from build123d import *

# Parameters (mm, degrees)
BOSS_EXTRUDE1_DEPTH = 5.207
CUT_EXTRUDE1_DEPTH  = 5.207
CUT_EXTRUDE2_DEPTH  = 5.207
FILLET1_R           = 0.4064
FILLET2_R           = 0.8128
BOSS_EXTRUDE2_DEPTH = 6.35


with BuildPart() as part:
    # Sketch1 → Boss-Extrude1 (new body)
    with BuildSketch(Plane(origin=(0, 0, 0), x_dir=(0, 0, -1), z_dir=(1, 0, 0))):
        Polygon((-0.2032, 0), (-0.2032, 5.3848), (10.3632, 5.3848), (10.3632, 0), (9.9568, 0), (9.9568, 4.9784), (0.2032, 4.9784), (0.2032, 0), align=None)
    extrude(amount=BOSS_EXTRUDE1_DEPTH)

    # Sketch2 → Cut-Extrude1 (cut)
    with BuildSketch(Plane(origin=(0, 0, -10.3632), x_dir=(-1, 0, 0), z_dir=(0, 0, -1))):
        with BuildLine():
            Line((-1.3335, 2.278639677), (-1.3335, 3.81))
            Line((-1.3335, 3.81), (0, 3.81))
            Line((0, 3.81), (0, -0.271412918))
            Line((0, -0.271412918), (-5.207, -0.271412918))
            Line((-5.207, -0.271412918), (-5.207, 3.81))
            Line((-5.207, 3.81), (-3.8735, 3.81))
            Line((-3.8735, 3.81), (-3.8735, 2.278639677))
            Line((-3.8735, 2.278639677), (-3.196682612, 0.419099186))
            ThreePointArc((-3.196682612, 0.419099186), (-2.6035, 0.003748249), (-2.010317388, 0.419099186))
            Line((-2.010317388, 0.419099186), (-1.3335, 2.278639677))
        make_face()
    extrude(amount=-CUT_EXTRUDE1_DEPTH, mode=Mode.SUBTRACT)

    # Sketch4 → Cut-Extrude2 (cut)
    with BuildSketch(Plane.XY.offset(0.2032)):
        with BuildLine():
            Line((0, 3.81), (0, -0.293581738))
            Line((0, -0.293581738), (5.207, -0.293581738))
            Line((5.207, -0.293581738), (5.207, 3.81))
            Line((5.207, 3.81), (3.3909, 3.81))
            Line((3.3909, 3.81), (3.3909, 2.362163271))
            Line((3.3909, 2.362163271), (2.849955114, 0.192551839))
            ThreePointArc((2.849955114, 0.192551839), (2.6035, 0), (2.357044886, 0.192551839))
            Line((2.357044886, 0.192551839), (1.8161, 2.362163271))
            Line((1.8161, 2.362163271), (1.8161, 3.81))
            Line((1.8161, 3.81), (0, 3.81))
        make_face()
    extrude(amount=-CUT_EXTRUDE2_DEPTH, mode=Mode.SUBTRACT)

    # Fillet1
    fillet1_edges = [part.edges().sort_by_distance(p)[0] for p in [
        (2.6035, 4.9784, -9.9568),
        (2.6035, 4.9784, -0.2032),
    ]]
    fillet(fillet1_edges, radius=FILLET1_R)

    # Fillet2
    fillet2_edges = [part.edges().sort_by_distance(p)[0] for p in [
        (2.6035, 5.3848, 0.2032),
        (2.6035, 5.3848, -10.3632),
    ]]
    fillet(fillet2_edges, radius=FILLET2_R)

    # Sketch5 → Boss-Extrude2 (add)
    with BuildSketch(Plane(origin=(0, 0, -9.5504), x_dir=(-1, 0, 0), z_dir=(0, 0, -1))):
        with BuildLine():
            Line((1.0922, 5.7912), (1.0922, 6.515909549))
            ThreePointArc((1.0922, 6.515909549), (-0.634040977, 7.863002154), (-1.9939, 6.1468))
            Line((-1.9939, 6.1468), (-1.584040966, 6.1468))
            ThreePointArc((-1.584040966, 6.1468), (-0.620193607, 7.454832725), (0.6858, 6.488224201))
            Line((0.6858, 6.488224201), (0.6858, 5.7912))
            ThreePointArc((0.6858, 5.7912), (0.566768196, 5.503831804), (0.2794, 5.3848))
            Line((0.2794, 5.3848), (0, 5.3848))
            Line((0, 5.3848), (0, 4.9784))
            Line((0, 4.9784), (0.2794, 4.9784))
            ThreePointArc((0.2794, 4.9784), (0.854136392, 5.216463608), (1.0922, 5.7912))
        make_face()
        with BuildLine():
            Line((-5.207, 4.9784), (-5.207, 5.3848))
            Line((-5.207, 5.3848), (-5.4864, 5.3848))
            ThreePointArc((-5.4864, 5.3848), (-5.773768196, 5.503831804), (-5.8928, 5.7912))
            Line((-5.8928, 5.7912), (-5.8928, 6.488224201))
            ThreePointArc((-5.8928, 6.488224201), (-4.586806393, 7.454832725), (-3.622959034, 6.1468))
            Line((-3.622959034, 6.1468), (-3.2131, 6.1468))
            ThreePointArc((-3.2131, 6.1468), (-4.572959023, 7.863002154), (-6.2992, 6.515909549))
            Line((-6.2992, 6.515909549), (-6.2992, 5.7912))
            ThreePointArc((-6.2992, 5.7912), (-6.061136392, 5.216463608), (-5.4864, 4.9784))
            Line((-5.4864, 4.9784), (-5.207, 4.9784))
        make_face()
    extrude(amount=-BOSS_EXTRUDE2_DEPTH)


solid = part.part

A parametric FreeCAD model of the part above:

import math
import FreeCAD as App
import Part
import Sketcher
from FreeCAD import Vector
Q = App.Units.Quantity


def edges_at(feature, points):
    """Names of the edges that pass closest to the given points."""
    edges = feature.Shape.Edges
    near = lambda p: min(range(len(edges)), key=lambda i: edges[i].distToShape(Part.Vertex(*p))[0])
    return sorted({f"Edge{near(p) + 1}" for p in points})

doc = App.newDocument("Part")
params = doc.addObject("Spreadsheet::Sheet", "Params")
for row, (alias, value) in enumerate([
    ("sketch1_width", "0.212 in"),
    ("sketch1_width2", "0.196 in"),
    ("sketch1_height", "0.016 in"),
    ("pad1_length", "0.205 in"),
    ("sketch2_width", "0.205 in"),
    ("pocket1_length", "0.205 in"),
    ("sketch3_radius", "0.01 in"),
    ("sketch3_width", "0.205 in"),
    ("pocket2_length", "0.205 in"),
    ("fillet_radius", "0.016 in"),
    ("fillet2_radius", "0.032 in"),
    ("sketch4_radius", "0.016 in"),
    ("sketch4_radius2", "0.032 in"),
    ("sketch4_width", "0.011 in"),
    ("pad2_length", "0.25 in"),
], start=1):
    params.set(f"A{row}", alias)
    params.set(f"B{row}", "=" + value)
    params.setAlias(f"B{row}", alias)

body = doc.addObject("PartDesign::Body", "Body")

# Sketch on YZ plane
sketch1 = doc.addObject("Sketcher::SketchObject", "Sketch")
body.addObject(sketch1)
sketch1.AttachmentSupport = (doc.YZ_Plane, [""])
sketch1.MapMode = "FlatFace"
sketch1.addGeometry([
    Part.LineSegment(Vector(5.38, 0.2, 0), Vector(0, 0.2, 0)),  # 0
    Part.LineSegment(Vector(0, 0.2, 0), Vector(0, -0.2, 0)),  # 1
    Part.LineSegment(Vector(0, -0.2, 0), Vector(4.98, -0.2, 0)),  # 2
    Part.LineSegment(Vector(4.98, -0.2, 0), Vector(4.98, -9.96, 0)),  # 3
    Part.LineSegment(Vector(4.98, -9.96, 0), Vector(0, -9.96, 0)),  # 4
    Part.LineSegment(Vector(0, -9.96, 0), Vector(0, -10.36, 0)),  # 5
    Part.LineSegment(Vector(0, -10.36, 0), Vector(5.38, -10.36, 0)),  # 6
    Part.LineSegment(Vector(5.38, -10.36, 0), Vector(5.38, 0.2, 0)),  # 7
], False)
sketch1.addConstraint([
    Sketcher.Constraint("Coincident", 0, 2, 1, 1),
    Sketcher.Constraint("Coincident", 1, 2, 2, 1),
    Sketcher.Constraint("Coincident", 2, 2, 3, 1),
    Sketcher.Constraint("Coincident", 3, 2, 4, 1),
    Sketcher.Constraint("Coincident", 4, 2, 5, 1),
    Sketcher.Constraint("Coincident", 5, 2, 6, 1),
    Sketcher.Constraint("Coincident", 6, 2, 7, 1),
    Sketcher.Constraint("Coincident", 7, 2, 0, 1),
    Sketcher.Constraint("Horizontal", 0),
    Sketcher.Constraint("Vertical", 1),
    Sketcher.Constraint("Horizontal", 2),
    Sketcher.Constraint("Vertical", 3),
    Sketcher.Constraint("Horizontal", 4),
    Sketcher.Constraint("Vertical", 5),
    Sketcher.Constraint("Horizontal", 6),
    Sketcher.Constraint("Vertical", 7),
    Sketcher.Constraint("Symmetric", 0, 2, 1, 2, -1, 1),
    Sketcher.Constraint("PointOnObject", 4, 2, -2),
    Sketcher.Constraint("Equal", 1, 5),
    Sketcher.Constraint("DistanceY", 3, 2, 0, 2, Q("0.4 in")),
    Sketcher.Constraint("DistanceX", 0, 2, 0, 1, Q("0.212 in")),
    Sketcher.Constraint("DistanceX", 2, 1, 2, 2, Q("0.196 in")),
    Sketcher.Constraint("DistanceY", 1, 2, 1, 1, Q("0.016 in")),
])
sketch1.setExpression("Constraints[20]", "Params.sketch1_width")
sketch1.setExpression("Constraints[21]", "Params.sketch1_width2")
sketch1.setExpression("Constraints[22]", "Params.sketch1_height")
pad1 = doc.addObject("PartDesign::Pad", "Pad")
body.addObject(pad1)
pad1.Profile = sketch1
pad1.setExpression("Length", "Params.pad1_length")

# Sketch on XY plane
sketch2 = doc.addObject("Sketcher::SketchObject", "Sketch001")
body.addObject(sketch2)
sketch2.AttachmentSupport = (doc.XY_Plane, [""])
sketch2.MapMode = "FlatFace"
sketch2.AttachmentOffset = App.Placement(Vector(0, 0, -0.408 * 25.4), App.Rotation())
sketch2.addGeometry([
    Part.LineSegment(Vector(1.3, 3.8, 0), Vector(1.3, 2.3, 0)),  # 0
    Part.LineSegment(Vector(1.3, 2.3, 0), Vector(2, 0.4, 0)),  # 1
    Part.ArcOfCircle(Part.Circle(Vector(2.6, 0.6, 0), Vector(0, 0, 1), 0.6), math.radians(-160), math.radians(-20)),  # 2
    Part.LineSegment(Vector(3.2, 0.4, 0), Vector(3.9, 2.3, 0)),  # 3
    Part.LineSegment(Vector(3.9, 2.3, 0), Vector(3.9, 3.8, 0)),  # 4
    Part.LineSegment(Vector(3.9, 3.8, 0), Vector(5.2, 3.8, 0)),  # 5
    Part.LineSegment(Vector(5.2, 3.8, 0), Vector(5.2, -0.3, 0)),  # 6
    Part.LineSegment(Vector(5.2, -0.3, 0), Vector(0, -0.3, 0)),  # 7
    Part.LineSegment(Vector(0, -0.3, 0), Vector(0, 3.8, 0)),  # 8
    Part.LineSegment(Vector(0, 3.8, 0), Vector(1.3, 3.8, 0)),  # 9
], False)
sketch2.addConstraint([
    Sketcher.Constraint("Coincident", 0, 2, 1, 1),
    Sketcher.Constraint("Tangent", 1, 2, 2, 1),
    Sketcher.Constraint("Tangent", 2, 2, 3, 1),
    Sketcher.Constraint("Coincident", 3, 2, 4, 1),
    Sketcher.Constraint("Coincident", 4, 2, 5, 1),
    Sketcher.Constraint("Coincident", 5, 2, 6, 1),
    Sketcher.Constraint("Coincident", 6, 2, 7, 1),
    Sketcher.Constraint("Coincident", 7, 2, 8, 1),
    Sketcher.Constraint("Coincident", 8, 2, 9, 1),
    Sketcher.Constraint("Coincident", 9, 2, 0, 1),
    Sketcher.Constraint("Vertical", 0),
    Sketcher.Constraint("Vertical", 4),
    Sketcher.Constraint("Horizontal", 5),
    Sketcher.Constraint("Vertical", 6),
    Sketcher.Constraint("Horizontal", 7),
    Sketcher.Constraint("Vertical", 8),
    Sketcher.Constraint("Horizontal", 9),
    Sketcher.Constraint("PointOnObject", 7, 2, -2),
    Sketcher.Constraint("Horizontal", 1, 2, 2, 2),
    Sketcher.Constraint("Horizontal", 0, 2, 3, 2),
    Sketcher.Constraint("Horizontal", 5, 2, 8, 2),
    Sketcher.Constraint("Equal", 5, 9),
    Sketcher.Constraint("Angle", 1, Q("-70 deg")),
    Sketcher.Constraint("DistanceX", 0, 2, 3, 2, Q("0.1 in")),
    Sketcher.Constraint("DistanceX", 7, 2, 7, 1, Q("0.205 in")),
    Sketcher.Constraint("DistanceY", -1, 1, 4, 2, Q("0.15 in")),
    Sketcher.Constraint("DistanceY", -1, 1, 2, 3, Q("0.025 in")),
    Sketcher.Constraint("Radius", 2, 0.631252),
    Sketcher.Constraint("DistanceY", 6, 2, 6, 1, 4.081413),
])
sketch2.setExpression("Constraints[24]", "Params.sketch2_width")
pocket1 = doc.addObject("PartDesign::Pocket", "Pocket")
body.addObject(pocket1)
pocket1.Profile = sketch2
pocket1.setExpression("Length", "Params.pocket1_length")
pocket1.Reversed = True

# Sketch on XY plane
sketch3 = doc.addObject("Sketcher::SketchObject", "Sketch002")
body.addObject(sketch3)
sketch3.AttachmentSupport = (doc.XY_Plane, [""])
sketch3.MapMode = "FlatFace"
sketch3.AttachmentOffset = App.Placement(Vector(0, 0, 0.008 * 25.4), App.Rotation())
sketch3.addGeometry([
    Part.LineSegment(Vector(0, 3.81, 0), Vector(0, -0.29, 0)),  # 0
    Part.LineSegment(Vector(0, -0.29, 0), Vector(5.21, -0.29, 0)),  # 1
    Part.LineSegment(Vector(5.21, -0.29, 0), Vector(5.21, 3.81, 0)),  # 2
    Part.LineSegment(Vector(5.21, 3.81, 0), Vector(3.39, 3.81, 0)),  # 3
    Part.LineSegment(Vector(3.39, 3.81, 0), Vector(3.39, 2.36, 0)),  # 4
    Part.LineSegment(Vector(3.39, 2.36, 0), Vector(2.85, 0.19, 0)),  # 5
    Part.ArcOfCircle(Part.Circle(Vector(2.6, 0.25, 0), Vector(0, 0, 1), 0.25), math.radians(-166), math.radians(-14)),  # 6
    Part.LineSegment(Vector(2.36, 0.19, 0), Vector(1.82, 2.36, 0)),  # 7
    Part.LineSegment(Vector(1.82, 2.36, 0), Vector(1.82, 3.81, 0)),  # 8
    Part.LineSegment(Vector(1.82, 3.81, 0), Vector(0, 3.81, 0)),  # 9
], False)
sketch3.addConstraint([
    Sketcher.Constraint("Coincident", 0, 2, 1, 1),
    Sketcher.Constraint("Coincident", 1, 2, 2, 1),
    Sketcher.Constraint("Coincident", 2, 2, 3, 1),
    Sketcher.Constraint("Coincident", 3, 2, 4, 1),
    Sketcher.Constraint("Coincident", 4, 2, 5, 1),
    Sketcher.Constraint("Tangent", 5, 2, 6, 2),
    Sketcher.Constraint("Tangent", 6, 1, 7, 1),
    Sketcher.Constraint("Coincident", 7, 2, 8, 1),
    Sketcher.Constraint("Coincident", 8, 2, 9, 1),
    Sketcher.Constraint("Coincident", 9, 2, 0, 1),
    Sketcher.Constraint("Vertical", 0),
    Sketcher.Constraint("Horizontal", 1),
    Sketcher.Constraint("Vertical", 2),
    Sketcher.Constraint("Horizontal", 3),
    Sketcher.Constraint("Vertical", 4),
    Sketcher.Constraint("Vertical", 8),
    Sketcher.Constraint("Horizontal", 9),
    Sketcher.Constraint("PointOnObject", 0, 2, -2),
    Sketcher.Constraint("Horizontal", 5, 2, 6, 1),
    Sketcher.Constraint("Horizontal", 4, 2, 7, 2),
    Sketcher.Constraint("Horizontal", 3, 2, 8, 2),
    Sketcher.Constraint("Equal", 3, 9),
    Sketcher.Constraint("Radius", 6, Q("0.01 in")),
    Sketcher.Constraint("Angle", 5, Q("-104 deg")),
    Sketcher.Constraint("DistanceX", 1, 1, 1, 2, Q("0.205 in")),
    Sketcher.Constraint("DistanceY", -1, 1, 6, 3, Q("0.01 in")),
    Sketcher.Constraint("DistanceY", -1, 1, 2, 2, Q("0.15 in")),
    Sketcher.Constraint("DistanceX", 3, 2, 3, 1, Q("0.0715 in")),
    Sketcher.Constraint("DistanceY", 0, 2, 0, 1, 4.103582),
])
sketch3.setExpression("Constraints[22]", "Params.sketch3_radius")
sketch3.setExpression("Constraints[24]", "Params.sketch3_width")
pocket2 = doc.addObject("PartDesign::Pocket", "Pocket001")
body.addObject(pocket2)
pocket2.Profile = sketch3
pocket2.setExpression("Length", "Params.pocket2_length")
doc.recompute()

fillet = doc.addObject("PartDesign::Fillet", "Fillet")
body.addObject(fillet)
fillet.Base = (pocket2, edges_at(pocket2, [(2.603, 4.978, -9.957), (2.603, 4.978, -0.203)]))
fillet.setExpression("Radius", "Params.fillet_radius")
doc.recompute()

fillet2 = doc.addObject("PartDesign::Fillet", "Fillet001")
body.addObject(fillet2)
fillet2.Base = (fillet, edges_at(fillet, [(2.603, 5.385, 0.203), (2.603, 5.385, -10.363)]))
fillet2.setExpression("Radius", "Params.fillet2_radius")

# Sketch on XY plane
sketch4 = doc.addObject("Sketcher::SketchObject", "Sketch003")
body.addObject(sketch4)
sketch4.AttachmentSupport = (doc.XY_Plane, [""])
sketch4.MapMode = "FlatFace"
sketch4.AttachmentOffset = App.Placement(Vector(0, 0, -0.376 * 25.4), App.Rotation())
sketch4.addGeometry([
    Part.LineSegment(Vector(-1.09, 5.79, 0), Vector(-1.09, 6.52, 0)),  # 0
    Part.ArcOfCircle(Part.Circle(Vector(0.45, 6.32, 0), Vector(0, 0, 1), 1.55), math.radians(-6), math.radians(173)),  # 1
    Part.LineSegment(Vector(1.99, 6.15, 0), Vector(1.58, 6.15, 0)),  # 2
    Part.ArcOfCircle(Part.Circle(Vector(0.45, 6.32, 0), Vector(0, 0, 1), 1.15), math.radians(-9), math.radians(172)),  # 3
    Part.LineSegment(Vector(-0.69, 6.49, 0), Vector(-0.69, 5.79, 0)),  # 4
    Part.ArcOfCircle(Part.Circle(Vector(-0.28, 5.79, 0), Vector(0, 0, 1), 0.41), math.radians(180), math.radians(270)),  # 5
    Part.LineSegment(Vector(-0.28, 5.38, 0), Vector(0, 5.38, 0)),  # 6
    Part.LineSegment(Vector(0, 5.38, 0), Vector(0, 4.98, 0)),  # 7
    Part.LineSegment(Vector(0, 4.98, 0), Vector(-0.28, 4.98, 0)),  # 8
    Part.ArcOfCircle(Part.Circle(Vector(-0.28, 5.79, 0), Vector(0, 0, 1), 0.81), math.radians(180), math.radians(270)),  # 9
    Part.LineSegment(Vector(5.21, 4.98, 0), Vector(5.21, 5.38, 0)),  # 10
    Part.LineSegment(Vector(5.21, 5.38, 0), Vector(5.49, 5.38, 0)),  # 11
    Part.ArcOfCircle(Part.Circle(Vector(5.49, 5.79, 0), Vector(0, 0, 1), 0.41), math.radians(-90), math.radians(0)),  # 12
    Part.LineSegment(Vector(5.89, 5.79, 0), Vector(5.89, 6.49, 0)),  # 13
    Part.ArcOfCircle(Part.Circle(Vector(4.76, 6.32, 0), Vector(0, 0, 1), 1.15), math.radians(8), math.radians(189)),  # 14
    Part.LineSegment(Vector(3.62, 6.15, 0), Vector(3.21, 6.15, 0)),  # 15
    Part.ArcOfCircle(Part.Circle(Vector(4.76, 6.32, 0), Vector(0, 0, 1), 1.55), math.radians(7), math.radians(186)),  # 16
    Part.LineSegment(Vector(6.3, 6.52, 0), Vector(6.3, 5.79, 0)),  # 17
    Part.ArcOfCircle(Part.Circle(Vector(5.49, 5.79, 0), Vector(0, 0, 1), 0.81), math.radians(-90), math.radians(0)),  # 18
    Part.LineSegment(Vector(5.49, 4.98, 0), Vector(5.21, 4.98, 0)),  # 19
], False)
sketch4.addConstraint([
    Sketcher.Constraint("Coincident", 0, 2, 1, 2),
    Sketcher.Constraint("Coincident", 1, 1, 2, 1),
    Sketcher.Constraint("Coincident", 2, 2, 3, 1),
    Sketcher.Constraint("Coincident", 3, 2, 4, 1),
    Sketcher.Constraint("Tangent", 4, 2, 5, 1),
    Sketcher.Constraint("Tangent", 5, 2, 6, 1),
    Sketcher.Constraint("Coincident", 6, 2, 7, 1),
    Sketcher.Constraint("Coincident", 7, 2, 8, 1),
    Sketcher.Constraint("Tangent", 8, 2, 9, 2),
    Sketcher.Constraint("Tangent", 9, 1, 0, 1),
    Sketcher.Constraint("Coincident", 10, 2, 11, 1),
    Sketcher.Constraint("Tangent", 11, 2, 12, 1),
    Sketcher.Constraint("Tangent", 12, 2, 13, 1),
    Sketcher.Constraint("Coincident", 13, 2, 14, 1),
    Sketcher.Constraint("Coincident", 14, 2, 15, 1),
    Sketcher.Constraint("Coincident", 15, 2, 16, 2),
    Sketcher.Constraint("Coincident", 16, 1, 17, 1),
    Sketcher.Constraint("Tangent", 17, 2, 18, 2),
    Sketcher.Constraint("Tangent", 18, 1, 19, 1),
    Sketcher.Constraint("Coincident", 19, 2, 10, 1),
    Sketcher.Constraint("Vertical", 0),
    Sketcher.Constraint("Horizontal", 2),
    Sketcher.Constraint("Vertical", 4),
    Sketcher.Constraint("Horizontal", 6),
    Sketcher.Constraint("Vertical", 7),
    Sketcher.Constraint("Horizontal", 8),
    Sketcher.Constraint("Vertical", 10),
    Sketcher.Constraint("Horizontal", 11),
    Sketcher.Constraint("Vertical", 13),
    Sketcher.Constraint("Horizontal", 15),
    Sketcher.Constraint("Vertical", 17),
    Sketcher.Constraint("Horizontal", 19),
    Sketcher.Constraint("Coincident", 3, 3, 1, 3),
    Sketcher.Constraint("Coincident", 9, 3, 5, 3),
    Sketcher.Constraint("Coincident", 16, 3, 14, 3),
    Sketcher.Constraint("Coincident", 18, 3, 12, 3),
    Sketcher.Constraint("Equal", 5, 12),
    Sketcher.Constraint("Equal", 3, 14),
    Sketcher.Constraint("Equal", 1, 16),
    Sketcher.Constraint("Equal", 9, 18),
    Sketcher.Constraint("PointOnObject", 6, 2, -2),
    Sketcher.Constraint("Horizontal", 9, 3, 12, 3),
    Sketcher.Constraint("Horizontal", 3, 3, 14, 3),
    Sketcher.Constraint("Horizontal", 3, 2, 13, 2),
    Sketcher.Constraint("Horizontal", 2, 2, 14, 2),
    Sketcher.Constraint("Equal", 8, 11),
    Sketcher.Constraint("Radius", 5, Q("0.016 in")),
    Sketcher.Constraint("Radius", 9, Q("0.032 in")),
    Sketcher.Constraint("DistanceX", 6, 1, 6, 2, Q("0.011 in")),
    Sketcher.Constraint("DistanceY", 10, 2, 1, 1, Q("0.03 in")),
    Sketcher.Constraint("DistanceY", -1, 1, 5, 3, Q("0.228 in")),
    Sketcher.Constraint("DistanceX", -1, 1, 12, 3, Q("0.216 in")),
    Sketcher.Constraint("Radius", 1, 1.55409),
    Sketcher.Constraint("Radius", 3, 1.14769),
    Sketcher.Constraint("DistanceX", 1, 1, 15, 2, Q("0.048 in")),
    Sketcher.Constraint("DistanceX", 2, 2, 2, 1, 0.409859),
])
sketch4.setExpression("Constraints[46]", "Params.sketch4_radius")
sketch4.setExpression("Constraints[47]", "Params.sketch4_radius2")
sketch4.setExpression("Constraints[48]", "Params.sketch4_width")
pad2 = doc.addObject("PartDesign::Pad", "Pad001")
body.addObject(pad2)
pad2.Profile = sketch4
pad2.setExpression("Length", "Params.pad2_length")

doc.recompute()
